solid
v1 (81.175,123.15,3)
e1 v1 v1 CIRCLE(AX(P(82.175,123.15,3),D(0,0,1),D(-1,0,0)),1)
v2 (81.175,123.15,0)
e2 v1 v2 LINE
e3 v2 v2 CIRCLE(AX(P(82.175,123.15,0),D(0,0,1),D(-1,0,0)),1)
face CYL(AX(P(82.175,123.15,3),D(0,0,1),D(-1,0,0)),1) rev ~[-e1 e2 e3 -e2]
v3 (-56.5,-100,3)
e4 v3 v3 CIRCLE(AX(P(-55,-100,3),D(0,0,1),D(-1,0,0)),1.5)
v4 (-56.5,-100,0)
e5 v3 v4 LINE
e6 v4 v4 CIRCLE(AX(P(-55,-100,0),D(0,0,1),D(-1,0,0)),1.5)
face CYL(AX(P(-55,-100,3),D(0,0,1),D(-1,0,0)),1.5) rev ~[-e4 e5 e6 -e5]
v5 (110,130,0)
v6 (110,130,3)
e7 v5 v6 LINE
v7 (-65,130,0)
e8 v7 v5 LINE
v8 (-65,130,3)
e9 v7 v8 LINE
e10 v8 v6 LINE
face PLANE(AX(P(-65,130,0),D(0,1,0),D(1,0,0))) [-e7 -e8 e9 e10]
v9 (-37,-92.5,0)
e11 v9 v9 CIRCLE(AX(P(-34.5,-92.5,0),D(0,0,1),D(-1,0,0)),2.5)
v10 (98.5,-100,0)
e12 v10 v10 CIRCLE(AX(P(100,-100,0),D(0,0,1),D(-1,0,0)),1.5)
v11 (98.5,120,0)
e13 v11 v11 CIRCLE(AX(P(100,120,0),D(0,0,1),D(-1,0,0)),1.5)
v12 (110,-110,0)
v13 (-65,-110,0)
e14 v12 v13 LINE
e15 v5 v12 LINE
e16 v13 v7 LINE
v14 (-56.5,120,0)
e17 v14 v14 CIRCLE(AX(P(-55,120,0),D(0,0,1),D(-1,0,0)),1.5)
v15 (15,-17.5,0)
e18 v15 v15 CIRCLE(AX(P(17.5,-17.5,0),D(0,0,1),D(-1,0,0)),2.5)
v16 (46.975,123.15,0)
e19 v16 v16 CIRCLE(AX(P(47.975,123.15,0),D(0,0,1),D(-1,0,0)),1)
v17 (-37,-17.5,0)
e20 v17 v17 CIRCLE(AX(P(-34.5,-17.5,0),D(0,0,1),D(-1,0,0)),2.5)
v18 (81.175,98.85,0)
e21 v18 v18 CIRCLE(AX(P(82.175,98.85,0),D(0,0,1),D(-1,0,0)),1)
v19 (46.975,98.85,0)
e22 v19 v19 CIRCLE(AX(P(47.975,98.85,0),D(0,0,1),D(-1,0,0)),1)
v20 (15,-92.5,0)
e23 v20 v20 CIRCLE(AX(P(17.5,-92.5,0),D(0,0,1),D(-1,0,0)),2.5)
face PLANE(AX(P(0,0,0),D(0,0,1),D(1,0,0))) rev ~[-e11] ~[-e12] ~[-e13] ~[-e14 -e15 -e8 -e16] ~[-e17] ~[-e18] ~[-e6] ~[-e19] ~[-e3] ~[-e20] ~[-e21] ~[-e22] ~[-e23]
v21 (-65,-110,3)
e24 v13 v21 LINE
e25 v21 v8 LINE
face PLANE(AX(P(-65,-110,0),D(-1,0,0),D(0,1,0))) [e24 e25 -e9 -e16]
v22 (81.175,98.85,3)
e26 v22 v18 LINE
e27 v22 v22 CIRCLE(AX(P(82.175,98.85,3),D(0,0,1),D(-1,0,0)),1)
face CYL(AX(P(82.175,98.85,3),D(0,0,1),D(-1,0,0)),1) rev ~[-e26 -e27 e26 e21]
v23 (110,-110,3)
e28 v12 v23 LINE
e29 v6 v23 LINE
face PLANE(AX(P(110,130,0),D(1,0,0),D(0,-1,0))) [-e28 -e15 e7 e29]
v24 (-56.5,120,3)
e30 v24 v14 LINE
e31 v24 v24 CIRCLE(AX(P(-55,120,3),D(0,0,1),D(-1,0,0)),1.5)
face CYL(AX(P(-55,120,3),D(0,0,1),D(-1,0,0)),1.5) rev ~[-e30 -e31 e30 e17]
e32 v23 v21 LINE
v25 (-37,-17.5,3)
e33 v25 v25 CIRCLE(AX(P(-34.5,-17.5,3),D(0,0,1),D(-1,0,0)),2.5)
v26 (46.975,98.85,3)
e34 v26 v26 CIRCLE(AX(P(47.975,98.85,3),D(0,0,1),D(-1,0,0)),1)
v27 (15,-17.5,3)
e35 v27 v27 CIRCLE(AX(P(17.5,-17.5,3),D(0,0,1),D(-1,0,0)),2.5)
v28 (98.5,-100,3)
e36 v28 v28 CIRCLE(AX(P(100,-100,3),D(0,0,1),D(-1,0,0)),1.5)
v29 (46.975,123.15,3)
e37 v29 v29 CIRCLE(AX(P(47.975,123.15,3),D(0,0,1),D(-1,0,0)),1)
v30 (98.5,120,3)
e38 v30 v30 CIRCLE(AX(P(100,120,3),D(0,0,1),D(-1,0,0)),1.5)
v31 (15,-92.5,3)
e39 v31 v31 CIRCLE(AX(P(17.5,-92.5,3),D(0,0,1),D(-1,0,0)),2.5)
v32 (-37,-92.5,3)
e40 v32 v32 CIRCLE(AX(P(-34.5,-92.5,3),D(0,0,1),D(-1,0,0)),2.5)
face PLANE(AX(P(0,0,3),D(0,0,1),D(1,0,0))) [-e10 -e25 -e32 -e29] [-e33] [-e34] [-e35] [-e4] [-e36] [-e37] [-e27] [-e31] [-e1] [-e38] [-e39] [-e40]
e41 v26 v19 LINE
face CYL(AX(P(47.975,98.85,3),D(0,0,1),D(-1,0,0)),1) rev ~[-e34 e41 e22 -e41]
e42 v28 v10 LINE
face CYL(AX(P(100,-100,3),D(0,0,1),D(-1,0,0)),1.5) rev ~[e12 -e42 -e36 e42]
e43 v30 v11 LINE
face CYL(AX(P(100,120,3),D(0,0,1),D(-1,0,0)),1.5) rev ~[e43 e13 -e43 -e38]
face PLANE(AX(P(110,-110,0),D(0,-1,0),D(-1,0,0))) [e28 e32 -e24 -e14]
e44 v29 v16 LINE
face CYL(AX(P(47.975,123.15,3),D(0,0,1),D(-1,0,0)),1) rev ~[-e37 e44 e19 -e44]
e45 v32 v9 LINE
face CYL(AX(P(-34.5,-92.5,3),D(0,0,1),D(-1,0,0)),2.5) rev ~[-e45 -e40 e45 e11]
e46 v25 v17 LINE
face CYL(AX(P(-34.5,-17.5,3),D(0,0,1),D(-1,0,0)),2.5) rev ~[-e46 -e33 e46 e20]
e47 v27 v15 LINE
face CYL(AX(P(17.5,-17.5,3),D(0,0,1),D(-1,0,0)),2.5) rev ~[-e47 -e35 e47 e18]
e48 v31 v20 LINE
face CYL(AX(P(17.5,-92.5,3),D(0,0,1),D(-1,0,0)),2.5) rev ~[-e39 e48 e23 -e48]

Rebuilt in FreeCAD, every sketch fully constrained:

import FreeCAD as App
import Part
import Sketcher

V = App.Vector
Q = App.Units.Quantity

doc = App.newDocument("Part")
body = doc.addObject("PartDesign::Body", "Body")

sketch1 = body.newObject("Sketcher::SketchObject", "Sketch")
sketch1.AttachmentSupport = (doc.getObject("XY_Plane"), [""])
sketch1.MapMode = "FlatFace"
sketch1.addGeometry(Part.LineSegment(V(110, 130, 0), V(-65, 130, 0)), False)
sketch1.addGeometry(Part.LineSegment(V(-65, 130, 0), V(-65, -110, 0)), False)
sketch1.addGeometry(Part.LineSegment(V(-65, -110, 0), V(110, -110, 0)), False)
sketch1.addGeometry(Part.LineSegment(V(110, -110, 0), V(110, 130, 0)), False)
sketch1.addConstraint(Sketcher.Constraint("Coincident", 0, 2, 1, 1))
sketch1.addConstraint(Sketcher.Constraint("Coincident", 1, 2, 2, 1))
sketch1.addConstraint(Sketcher.Constraint("Coincident", 2, 2, 3, 1))
sketch1.addConstraint(Sketcher.Constraint("Coincident", 3, 2, 0, 1))
sketch1.addConstraint(Sketcher.Constraint("Horizontal", 0))
sketch1.addConstraint(Sketcher.Constraint("Vertical", 1))
sketch1.addConstraint(Sketcher.Constraint("Horizontal", 2))
sketch1.addConstraint(Sketcher.Constraint("Vertical", 3))
sketch1.addConstraint(Sketcher.Constraint("DistanceX", 0, 2, 0, 1, Q("175 mm")))
sketch1.addConstraint(Sketcher.Constraint("DistanceY", 1, 2, 1, 1, Q("240 mm")))
sketch1.addConstraint(Sketcher.Constraint("DistanceX", 0, 2, -1, 1, Q("65 mm")))
sketch1.addConstraint(Sketcher.Constraint("DistanceY", -1, 1, 0, 2, Q("130 mm")))
pad1 = body.newObject("PartDesign::Pad", "Pad")
pad1.Profile = sketch1
pad1.Length = 3

sketch2 = body.newObject("Sketcher::SketchObject", "Sketch001")
sketch2.AttachmentSupport = (doc.getObject("XY_Plane"), [""])
sketch2.MapMode = "FlatFace"
sketch2.AttachmentOffset = App.Placement(V(0, 0, 3), App.Rotation())
sketch2.addGeometry(Part.Circle(V(-34.5, -92.5, 0), V(0, 0, 1), 2.5), False)
sketch2.addGeometry(Part.Circle(V(17.5, -17.5, 0), V(0, 0, 1), 2.5), False)
sketch2.addGeometry(Part.Circle(V(17.5, -92.5, 0), V(0, 0, 1), 2.5), False)
sketch2.addGeometry(Part.Circle(V(-34.5, -17.5, 0), V(0, 0, 1), 2.5), False)
sketch2.addGeometry(Part.Circle(V(48, 123.2, 0), V(0, 0, 1), 1), False)
sketch2.addGeometry(Part.Circle(V(82.2, 123.2, 0), V(0, 0, 1), 1), False)
sketch2.addGeometry(Part.Circle(V(48, 98.8, 0), V(0, 0, 1), 1), False)
sketch2.addGeometry(Part.Circle(V(82.2, 98.8, 0), V(0, 0, 1), 1), False)
sketch2.addConstraint(Sketcher.Constraint("Equal", 0, 1))
sketch2.addConstraint(Sketcher.Constraint("Equal", 1, 2))
sketch2.addConstraint(Sketcher.Constraint("Equal", 2, 3))
sketch2.addConstraint(Sketcher.Constraint("Equal", 4, 5))
sketch2.addConstraint(Sketcher.Constraint("Equal", 5, 6))
sketch2.addConstraint(Sketcher.Constraint("Equal", 6, 7))
sketch2.addConstraint(Sketcher.Constraint("Horizontal", 0, 3, 2, 3))
sketch2.addConstraint(Sketcher.Constraint("Horizontal", 1, 3, 3, 3))
sketch2.addConstraint(Sketcher.Constraint("Horizontal", 4, 3, 5, 3))
sketch2.addConstraint(Sketcher.Constraint("Horizontal", 6, 3, 7, 3))
sketch2.addConstraint(Sketcher.Constraint("Vertical", 1, 3, 2, 3))
sketch2.addConstraint(Sketcher.Constraint("Vertical", 0, 3, 3, 3))
sketch2.addConstraint(Sketcher.Constraint("Vertical", 4, 3, 6, 3))
sketch2.addConstraint(Sketcher.Constraint("Vertical", 5, 3, 7, 3))
sketch2.addConstraint(Sketcher.Constraint("Diameter", 0, Q("5 mm")))
sketch2.addConstraint(Sketcher.Constraint("Diameter", 4, Q("2 mm")))
sketch2.addConstraint(Sketcher.Constraint("DistanceX", 0, 3, 1, 3, Q("52 mm")))
sketch2.addConstraint(Sketcher.Constraint("DistanceY", 0, 3, 1, 3, Q("75 mm")))
sketch2.addConstraint(Sketcher.Constraint("DistanceX", 4, 3, 5, 3, Q("34.2 mm")))
sketch2.addConstraint(Sketcher.Constraint("DistanceY", 6, 3, 4, 3, Q("24.3 mm")))
sketch2.addConstraint(Sketcher.Constraint("DistanceX", 0, 3, -1, 1, Q("34.5 mm")))
sketch2.addConstraint(Sketcher.Constraint("DistanceY", 0, 3, -1, 1, Q("92.5 mm")))
sketch2.addConstraint(Sketcher.Constraint("DistanceY", -1, 1, 4, 3, Q("123.15 mm")))
sketch2.addConstraint(Sketcher.Constraint("DistanceX", -1, 1, 4, 3, Q("47.975 mm")))
pocket1 = body.newObject("PartDesign::Pocket", "Pocket")
pocket1.Profile = sketch2
pocket1.Length = 3

sketch3 = body.newObject("Sketcher::SketchObject", "Sketch002")
sketch3.AttachmentSupport = (doc.getObject("XY_Plane"), [""])
sketch3.MapMode = "FlatFace"
sketch3.AttachmentOffset = App.Placement(V(0, 0, 3), App.Rotation())
sketch3.addGeometry(Part.Circle(V(-55, 120, 0), V(0, 0, 1), 1.5), False)
sketch3.addGeometry(Part.Circle(V(100, 120, 0), V(0, 0, 1), 1.5), False)
sketch3.addGeometry(Part.Circle(V(100, -100, 0), V(0, 0, 1), 1.5), False)
sketch3.addGeometry(Part.Circle(V(-55, -100, 0), V(0, 0, 1), 1.5), False)
sketch3.addConstraint(Sketcher.Constraint("Equal", 0, 1))
sketch3.addConstraint(Sketcher.Constraint("Equal", 1, 2))
sketch3.addConstraint(Sketcher.Constraint("Equal", 2, 3))
sketch3.addConstraint(Sketcher.Constraint("Horizontal", 0, 3, 1, 3))
sketch3.addConstraint(Sketcher.Constraint("Horizontal", 2, 3, 3, 3))
sketch3.addConstraint(Sketcher.Constraint("Vertical", 1, 3, 2, 3))
sketch3.addConstraint(Sketcher.Constraint("Vertical", 0, 3, 3, 3))
sketch3.addConstraint(Sketcher.Constraint("Diameter", 0, Q("3 mm")))
sketch3.addConstraint(Sketcher.Constraint("DistanceX", 0, 3, -1, 1, Q("55 mm")))
sketch3.addConstraint(Sketcher.Constraint("DistanceY", -1, 1, 0, 3, Q("120 mm")))
sketch3.addConstraint(Sketcher.Constraint("DistanceX", -1, 1, 1, 3, Q("100 mm")))
sketch3.addConstraint(Sketcher.Constraint("DistanceY", 2, 3, -1, 1, Q("100 mm")))
pocket2 = body.newObject("PartDesign::Pocket", "Pocket001")
pocket2.Profile = sketch3
pocket2.Length = 3

doc.recompute()
